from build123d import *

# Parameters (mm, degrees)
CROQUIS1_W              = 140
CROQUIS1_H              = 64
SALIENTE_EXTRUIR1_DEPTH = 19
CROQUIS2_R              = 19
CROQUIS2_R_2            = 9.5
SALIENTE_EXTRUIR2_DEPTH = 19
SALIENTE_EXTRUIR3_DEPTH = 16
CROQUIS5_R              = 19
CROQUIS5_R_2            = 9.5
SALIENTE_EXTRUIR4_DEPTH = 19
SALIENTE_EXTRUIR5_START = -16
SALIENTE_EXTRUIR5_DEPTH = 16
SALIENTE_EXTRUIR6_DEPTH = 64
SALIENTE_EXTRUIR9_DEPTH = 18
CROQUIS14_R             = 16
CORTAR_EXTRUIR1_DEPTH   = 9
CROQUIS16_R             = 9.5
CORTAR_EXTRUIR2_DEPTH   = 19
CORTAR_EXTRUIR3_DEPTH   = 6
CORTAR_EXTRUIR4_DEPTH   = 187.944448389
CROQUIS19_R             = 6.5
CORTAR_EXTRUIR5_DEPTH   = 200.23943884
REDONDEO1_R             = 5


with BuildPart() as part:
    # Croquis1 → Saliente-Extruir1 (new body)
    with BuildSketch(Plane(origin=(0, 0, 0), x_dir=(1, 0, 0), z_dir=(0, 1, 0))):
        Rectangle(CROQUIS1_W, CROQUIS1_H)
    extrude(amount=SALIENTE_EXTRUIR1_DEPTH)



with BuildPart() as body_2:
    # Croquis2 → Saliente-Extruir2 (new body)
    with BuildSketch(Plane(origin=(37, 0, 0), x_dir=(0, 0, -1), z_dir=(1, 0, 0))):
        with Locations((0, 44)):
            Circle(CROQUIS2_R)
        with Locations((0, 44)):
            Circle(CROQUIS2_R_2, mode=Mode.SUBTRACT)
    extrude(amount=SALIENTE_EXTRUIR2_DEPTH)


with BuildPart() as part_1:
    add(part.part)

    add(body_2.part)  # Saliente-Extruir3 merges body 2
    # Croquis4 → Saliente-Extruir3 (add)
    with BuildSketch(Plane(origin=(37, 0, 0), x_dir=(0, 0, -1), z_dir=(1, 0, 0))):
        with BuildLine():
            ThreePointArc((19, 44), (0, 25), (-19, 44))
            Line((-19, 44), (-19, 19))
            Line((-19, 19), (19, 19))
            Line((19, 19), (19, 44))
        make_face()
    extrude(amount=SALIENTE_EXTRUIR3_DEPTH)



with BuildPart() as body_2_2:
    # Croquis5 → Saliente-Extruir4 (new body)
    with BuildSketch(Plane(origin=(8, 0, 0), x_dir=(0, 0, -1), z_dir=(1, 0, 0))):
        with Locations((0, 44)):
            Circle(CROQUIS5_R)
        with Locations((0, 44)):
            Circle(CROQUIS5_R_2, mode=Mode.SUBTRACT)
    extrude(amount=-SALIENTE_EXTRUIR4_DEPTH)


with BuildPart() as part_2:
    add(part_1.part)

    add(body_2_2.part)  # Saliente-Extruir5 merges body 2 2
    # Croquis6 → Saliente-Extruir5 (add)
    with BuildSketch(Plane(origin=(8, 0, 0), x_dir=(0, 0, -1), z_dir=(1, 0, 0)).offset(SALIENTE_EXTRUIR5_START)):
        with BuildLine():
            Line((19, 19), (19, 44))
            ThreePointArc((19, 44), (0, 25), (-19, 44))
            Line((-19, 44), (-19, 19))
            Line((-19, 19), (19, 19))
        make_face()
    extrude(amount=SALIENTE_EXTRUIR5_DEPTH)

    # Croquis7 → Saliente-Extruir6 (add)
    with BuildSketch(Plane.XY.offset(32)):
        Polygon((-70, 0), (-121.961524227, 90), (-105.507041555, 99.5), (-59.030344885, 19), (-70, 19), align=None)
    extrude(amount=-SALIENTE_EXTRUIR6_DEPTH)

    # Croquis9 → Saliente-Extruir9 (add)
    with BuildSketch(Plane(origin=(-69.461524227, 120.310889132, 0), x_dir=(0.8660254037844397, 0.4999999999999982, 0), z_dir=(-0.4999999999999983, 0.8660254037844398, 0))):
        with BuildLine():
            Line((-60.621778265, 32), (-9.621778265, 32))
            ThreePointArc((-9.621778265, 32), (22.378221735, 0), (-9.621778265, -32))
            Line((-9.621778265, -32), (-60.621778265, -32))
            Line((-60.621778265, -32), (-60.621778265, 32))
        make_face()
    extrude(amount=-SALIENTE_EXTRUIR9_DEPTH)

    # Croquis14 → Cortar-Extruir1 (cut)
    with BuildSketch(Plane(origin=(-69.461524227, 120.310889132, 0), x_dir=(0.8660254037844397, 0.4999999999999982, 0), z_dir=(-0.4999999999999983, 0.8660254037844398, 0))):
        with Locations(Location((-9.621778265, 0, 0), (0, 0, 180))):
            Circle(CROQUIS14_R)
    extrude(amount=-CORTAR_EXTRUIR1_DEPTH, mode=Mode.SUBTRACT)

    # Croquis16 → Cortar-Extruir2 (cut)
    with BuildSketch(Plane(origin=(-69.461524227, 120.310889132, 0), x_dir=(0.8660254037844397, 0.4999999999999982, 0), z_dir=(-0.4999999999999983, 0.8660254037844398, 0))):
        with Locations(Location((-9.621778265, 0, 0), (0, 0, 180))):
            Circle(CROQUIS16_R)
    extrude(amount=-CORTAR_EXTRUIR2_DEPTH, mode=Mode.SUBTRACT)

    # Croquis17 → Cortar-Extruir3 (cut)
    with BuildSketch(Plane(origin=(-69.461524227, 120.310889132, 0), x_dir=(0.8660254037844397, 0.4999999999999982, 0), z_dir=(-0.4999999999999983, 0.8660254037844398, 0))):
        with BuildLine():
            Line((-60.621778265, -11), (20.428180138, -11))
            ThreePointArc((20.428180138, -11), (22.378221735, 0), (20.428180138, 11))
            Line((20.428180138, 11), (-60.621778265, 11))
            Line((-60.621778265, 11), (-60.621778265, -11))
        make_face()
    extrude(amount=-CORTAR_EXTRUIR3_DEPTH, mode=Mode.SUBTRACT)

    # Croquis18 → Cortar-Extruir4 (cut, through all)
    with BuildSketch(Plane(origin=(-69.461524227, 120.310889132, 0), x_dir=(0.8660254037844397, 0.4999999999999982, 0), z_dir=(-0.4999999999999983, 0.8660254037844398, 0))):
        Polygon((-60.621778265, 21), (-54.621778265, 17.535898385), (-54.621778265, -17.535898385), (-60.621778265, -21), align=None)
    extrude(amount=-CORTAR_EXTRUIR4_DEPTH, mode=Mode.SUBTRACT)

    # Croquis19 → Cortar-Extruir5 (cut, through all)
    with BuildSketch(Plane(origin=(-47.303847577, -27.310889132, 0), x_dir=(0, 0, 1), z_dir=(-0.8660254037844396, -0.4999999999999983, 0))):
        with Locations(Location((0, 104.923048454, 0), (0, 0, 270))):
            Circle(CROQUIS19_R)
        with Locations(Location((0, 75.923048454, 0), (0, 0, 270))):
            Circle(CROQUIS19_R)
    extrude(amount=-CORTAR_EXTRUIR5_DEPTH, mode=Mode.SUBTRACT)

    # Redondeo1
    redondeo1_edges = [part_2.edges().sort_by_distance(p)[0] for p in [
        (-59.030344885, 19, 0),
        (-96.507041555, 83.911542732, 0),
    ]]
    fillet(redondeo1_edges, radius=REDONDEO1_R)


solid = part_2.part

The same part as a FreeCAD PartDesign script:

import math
import FreeCAD as App
import Part
import Sketcher
from FreeCAD import Vector
Q = App.Units.Quantity


def edges_at(feature, points):
    """Names of the edges that pass closest to the given points."""
    edges = feature.Shape.Edges
    near = lambda p: min(range(len(edges)), key=lambda i: edges[i].distToShape(Part.Vertex(*p))[0])
    return sorted({f"Edge{near(p) + 1}" for p in points})


def add_polygon(sketch, points):
    """Adds a closed chain of lines whose ends are joined by coincident constraints."""
    first, n = sketch.GeometryCount, len(points)
    for a, b in zip(points, points[1:] + points[:1]):
        sketch.addGeometry(Part.LineSegment(App.Vector(*a, 0), App.Vector(*b, 0)), False)
    for i in range(n):
        sketch.addConstraint(Sketcher.Constraint("Coincident", first + i, 2, first + (i + 1) % n, 1))

doc = App.newDocument("Part")
params = doc.addObject("Spreadsheet::Sheet", "Params")
for row, (alias, value) in enumerate([
    ("sketch1_width", "140 mm"),
    ("sketch1_height", "64 mm"),
    ("pad1_length", "19 mm"),
    ("sketch2_diameter", "38 mm"),
    ("sketch2_diameter2", "19 mm"),
    ("pad2_length", "19 mm"),
    ("sketch3_radius", "19 mm"),
    ("sketch3_width", "25 mm"),
    ("pad3_length", "16 mm"),
    ("sketch4_diameter", "38 mm"),
    ("sketch4_diameter2", "19 mm"),
    ("pad4_length", "19 mm"),
    ("sketch5_radius", "19 mm"),
    ("sketch5_width", "25 mm"),
    ("pad5_length", "16 mm"),
    ("sketch6_height", "19 mm"),
    ("sketch6_length", "19 mm"),
    ("pad6_length", "64 mm"),
    ("sketch7_radius", "32 mm"),
    ("sketch7_width", "51 mm"),
    ("pad7_length", "18 mm"),
    ("sketch8_diameter", "32 mm"),
    ("pocket1_length", "9 mm"),
    ("sketch9_diameter", "19 mm"),
    ("pocket2_length", "19 mm"),
    ("sketch10_radius", "32 mm"),
    ("sketch10_height", "22 mm"),
    ("pocket3_length", "6 mm"),
    ("sketch11_height", "42 mm"),
    ("sketch12_diameter", "13 mm"),
    ("fillet_radius", "5 mm"),
], start=1):
    params.set(f"A{row}", alias)
    params.set(f"B{row}", "=" + value)
    params.setAlias(f"B{row}", alias)

body = doc.addObject("PartDesign::Body", "Body")

# Sketch on XZ plane
sketch1 = doc.addObject("Sketcher::SketchObject", "Sketch")
body.addObject(sketch1)
sketch1.AttachmentSupport = (doc.XZ_Plane, [""])
sketch1.MapMode = "FlatFace"
add_polygon(sketch1, [(-70, -32), (-70, 32), (70, 32), (70, -32)])  # lines 0-3
sketch1.addConstraint([
    Sketcher.Constraint("Vertical", 0),
    Sketcher.Constraint("Horizontal", 1),
    Sketcher.Constraint("Vertical", 2),
    Sketcher.Constraint("Horizontal", 3),
    Sketcher.Constraint("Symmetric", 0, 2, 2, 2, -1, 1),
    Sketcher.Constraint("DistanceX", 1, 1, 1, 2, 140.0),
    Sketcher.Constraint("DistanceY", 0, 1, 0, 2, 64.0),
])
sketch1.setExpression("Constraints[9]", "Params.sketch1_width")
sketch1.setExpression("Constraints[10]", "Params.sketch1_height")
pad1 = doc.addObject("PartDesign::Pad", "Pad")
body.addObject(pad1)
pad1.Profile = sketch1
pad1.setExpression("Length", "Params.pad1_length")
pad1.Reversed = True
body2 = doc.addObject("PartDesign::Body", "Body001")

# Sketch on YZ plane
sketch2 = doc.addObject("Sketcher::SketchObject", "Sketch001")
body2.addObject(sketch2)
sketch2.AttachmentSupport = (doc.getObject("YZ_Plane001"), [""])
sketch2.MapMode = "FlatFace"
sketch2.AttachmentOffset = App.Placement(Vector(0, 0, 37), App.Rotation())
sketch2.addGeometry([
    Part.Circle(Vector(44, 0, 0), Vector(0, 0, 1), 19),
    Part.Circle(Vector(44, 0, 0), Vector(0, 0, 1), 10),
], False)
sketch2.addConstraint([
    Sketcher.Constraint("Coincident", 1, 3, 0, 3),
    Sketcher.Constraint("PointOnObject", 0, 3, -1),
    Sketcher.Constraint("Diameter", 0, 38.0),
    Sketcher.Constraint("Diameter", 1, 19.0),
    Sketcher.Constraint("DistanceX", -1, 1, 0, 3, 44.0),
])
sketch2.setExpression("Constraints[2]", "Params.sketch2_diameter")
sketch2.setExpression("Constraints[3]", "Params.sketch2_diameter2")
pad2 = doc.addObject("PartDesign::Pad", "Pad001")
body2.addObject(pad2)
pad2.Profile = sketch2
pad2.setExpression("Length", "Params.pad2_length")
body.AllowCompound = True
doc.recompute()

boolean = doc.addObject("PartDesign::Boolean", "Boolean")
body.addObject(boolean)
boolean.Type = "Fuse"
boolean.addObjects([body2])

# Sketch on YZ plane
sketch3 = doc.addObject("Sketcher::SketchObject", "Sketch002")
body.addObject(sketch3)
sketch3.AttachmentSupport = (doc.YZ_Plane, [""])
sketch3.MapMode = "FlatFace"
sketch3.AttachmentOffset = App.Placement(Vector(0, 0, 37), App.Rotation())
sketch3.addGeometry([
    Part.ArcOfCircle(Part.Circle(Vector(44, 0, 0), Vector(0, 0, 1), 19), math.radians(90), math.radians(270)),
    Part.LineSegment(Vector(44, 19, 0), Vector(19, 19, 0)),
    Part.LineSegment(Vector(19, 19, 0), Vector(19, -19, 0)),
    Part.LineSegment(Vector(19, -19, 0), Vector(44, -19, 0)),
], False)
sketch3.addConstraint([
    Sketcher.Constraint("Tangent", 0, 1, 1, 1),
    Sketcher.Constraint("Coincident", 1, 2, 2, 1),
    Sketcher.Constraint("Coincident", 2, 2, 3, 1),
    Sketcher.Constraint("Tangent", 3, 2, 0, 2),
    Sketcher.Constraint("Horizontal", 1),
    Sketcher.Constraint("Vertical", 2),
    Sketcher.Constraint("Horizontal", 3),
    Sketcher.Constraint("PointOnObject", 0, 3, -1),
    Sketcher.Constraint("Radius", 0, 19.0),
    Sketcher.Constraint("DistanceX", 1, 2, 1, 1, 25.0),
    Sketcher.Constraint("DistanceX", -1, 1, 0, 3, 44.0),
])
sketch3.setExpression("Constraints[8]", "Params.sketch3_radius")
sketch3.setExpression("Constraints[9]", "Params.sketch3_width")
pad3 = doc.addObject("PartDesign::Pad", "Pad002")
body.addObject(pad3)
pad3.Profile = sketch3
pad3.setExpression("Length", "Params.pad3_length")
body3 = doc.addObject("PartDesign::Body", "Body002")

# Sketch on YZ plane
sketch4 = doc.addObject("Sketcher::SketchObject", "Sketch003")
body3.addObject(sketch4)
sketch4.AttachmentSupport = (doc.getObject("YZ_Plane002"), [""])
sketch4.MapMode = "FlatFace"
sketch4.AttachmentOffset = App.Placement(Vector(0, 0, 8), App.Rotation())
sketch4.addGeometry([
    Part.Circle(Vector(44, 0, 0), Vector(0, 0, 1), 19),
    Part.Circle(Vector(44, 0, 0), Vector(0, 0, 1), 10),
], False)
sketch4.addConstraint([
    Sketcher.Constraint("Coincident", 1, 3, 0, 3),
    Sketcher.Constraint("PointOnObject", 0, 3, -1),
    Sketcher.Constraint("Diameter", 0, 38.0),
    Sketcher.Constraint("Diameter", 1, 19.0),
    Sketcher.Constraint("DistanceX", -1, 1, 0, 3, 44.0),
])
sketch4.setExpression("Constraints[2]", "Params.sketch4_diameter")
sketch4.setExpression("Constraints[3]", "Params.sketch4_diameter2")
pad4 = doc.addObject("PartDesign::Pad", "Pad003")
body3.addObject(pad4)
pad4.Profile = sketch4
pad4.setExpression("Length", "Params.pad4_length")
pad4.Reversed = True
body.AllowCompound = True
doc.recompute()

boolean2 = doc.addObject("PartDesign::Boolean", "Boolean001")
body.addObject(boolean2)
boolean2.Type = "Fuse"
boolean2.addObjects([body3])

# Sketch on YZ plane
sketch5 = doc.addObject("Sketcher::SketchObject", "Sketch004")
body.addObject(sketch5)
sketch5.AttachmentSupport = (doc.YZ_Plane, [""])
sketch5.MapMode = "FlatFace"
sketch5.AttachmentOffset = App.Placement(Vector(0, 0, -8), App.Rotation())
sketch5.addGeometry([
    Part.LineSegment(Vector(19, -19, 0), Vector(44, -19, 0)),
    Part.ArcOfCircle(Part.Circle(Vector(44, 0, 0), Vector(0, 0, 1), 19), math.radians(90), math.radians(270)),
    Part.LineSegment(Vector(44, 19, 0), Vector(19, 19, 0)),
    Part.LineSegment(Vector(19, 19, 0), Vector(19, -19, 0)),
], False)
sketch5.addConstraint([
    Sketcher.Constraint("Tangent", 0, 2, 1, 2),
    Sketcher.Constraint("Tangent", 1, 1, 2, 1),
    Sketcher.Constraint("Coincident", 2, 2, 3, 1),
    Sketcher.Constraint("Coincident", 3, 2, 0, 1),
    Sketcher.Constraint("Horizontal", 0),
    Sketcher.Constraint("Horizontal", 2),
    Sketcher.Constraint("Vertical", 3),
    Sketcher.Constraint("PointOnObject", 1, 3, -1),
    Sketcher.Constraint("Radius", 1, 19.0),
    Sketcher.Constraint("DistanceX", 0, 1, 0, 2, 25.0),
    Sketcher.Constraint("DistanceX", -1, 1, 1, 3, 44.0),
])
sketch5.setExpression("Constraints[8]", "Params.sketch5_radius")
sketch5.setExpression("Constraints[9]", "Params.sketch5_width")
pad5 = doc.addObject("PartDesign::Pad", "Pad004")
body.addObject(pad5)
pad5.Profile = sketch5
pad5.setExpression("Length", "Params.pad5_length")

# Sketch on XY plane
sketch6 = doc.addObject("Sketcher::SketchObject", "Sketch005")
body.addObject(sketch6)
sketch6.AttachmentSupport = (doc.XY_Plane, [""])
sketch6.MapMode = "FlatFace"
sketch6.AttachmentOffset = App.Placement(Vector(0, 0, 32), App.Rotation())
add_polygon(sketch6, [(-122, 90), (-70, 0), (-70, 19), (-59, 19), (-106, 100)])  # lines 0-4
sketch6.addConstraint([
    Sketcher.Constraint("Vertical", 1),
    Sketcher.Constraint("Horizontal", 2),
    Sketcher.Constraint("PointOnObject", 0, 2, -1),
    Sketcher.Constraint("Parallel", 0, 3),
    Sketcher.Constraint("Perpendicular", 3, 4),
    Sketcher.Constraint("DistanceY", 1, 1, 1, 2, 19.0),
    Sketcher.Constraint("Angle", 0, Q("-60 deg")),
    Sketcher.Constraint("Distance", 4, 19.0),
    Sketcher.Constraint("DistanceX", 0, 2, -1, 1, 70.0),
    Sketcher.Constraint("DistanceY", -1, 1, 4, 2, 90.0),
])
sketch6.setExpression("Constraints[10]", "Params.sketch6_height")
sketch6.setExpression("Constraints[12]", "Params.sketch6_length")
pad6 = doc.addObject("PartDesign::Pad", "Pad005")
body.addObject(pad6)
pad6.Profile = sketch6
pad6.setExpression("Length", "Params.pad6_length")
pad6.Reversed = True

# Sketch on an angled plane
sketch7 = doc.addObject("Sketcher::SketchObject", "Sketch006")
body.addObject(sketch7)
sketch7.Placement = App.Placement(Vector(-69.461524, 120.310889, 0), App.Rotation(Vector(0.866025404, 0.5, 0), Vector(0, 0, -1), Vector(-0.5, 0.866025404, 0), "ZXY"))
sketch7.addGeometry([
    Part.LineSegment(Vector(-10, 32, 0), Vector(-61, 32, 0)),
    Part.LineSegment(Vector(-61, 32, 0), Vector(-61, -32, 0)),
    Part.LineSegment(Vector(-61, -32, 0), Vector(-10, -32, 0)),
    Part.ArcOfCircle(Part.Circle(Vector(-10, 0, 0), Vector(0, 0, 1), 32), math.radians(-90), math.radians(90)),
], False)
sketch7.addConstraint([
    Sketcher.Constraint("Coincident", 0, 2, 1, 1),
    Sketcher.Constraint("Coincident", 1, 2, 2, 1),
    Sketcher.Constraint("Tangent", 2, 2, 3, 1),
    Sketcher.Constraint("Tangent", 3, 2, 0, 1),
    Sketcher.Constraint("Horizontal", 0),
    Sketcher.Constraint("Vertical", 1),
    Sketcher.Constraint("Horizontal", 2),
    Sketcher.Constraint("PointOnObject", 3, 3, -1),
    Sketcher.Constraint("Radius", 3, 32.0),
    Sketcher.Constraint("DistanceX", 0, 2, 0, 1, 51.0),
    Sketcher.Constraint("DistanceX", 3, 3, -1, 1, 9.621778),
])
sketch7.setExpression("Constraints[8]", "Params.sketch7_radius")
sketch7.setExpression("Constraints[9]", "Params.sketch7_width")
pad7 = doc.addObject("PartDesign::Pad", "Pad006")
body.addObject(pad7)
pad7.Profile = sketch7
pad7.setExpression("Length", "Params.pad7_length")
pad7.Reversed = True

# Sketch on an angled plane
sketch8 = doc.addObject("Sketcher::SketchObject", "Sketch007")
body.addObject(sketch8)
sketch8.Placement = App.Placement(Vector(-69.461524, 120.310889, 0), App.Rotation(Vector(0.866025404, 0.5, 0), Vector(0, 0, -1), Vector(-0.5, 0.866025404, 0), "ZXY"))
sketch8.addGeometry(Part.Circle(Vector(-10, 0, 0), Vector(0, 0, 1), 16), False)
sketch8.addConstraint([
    Sketcher.Constraint("PointOnObject", 0, 3, -1),
    Sketcher.Constraint("Diameter", 0, 32.0),
    Sketcher.Constraint("DistanceX", 0, 3, -1, 1, 9.621778),
])
sketch8.setExpression("Constraints[1]", "Params.sketch8_diameter")
pocket1 = doc.addObject("PartDesign::Pocket", "Pocket")
body.addObject(pocket1)
pocket1.Profile = sketch8
pocket1.setExpression("Length", "Params.pocket1_length")

# Sketch on an angled plane
sketch9 = doc.addObject("Sketcher::SketchObject", "Sketch008")
body.addObject(sketch9)
sketch9.Placement = App.Placement(Vector(-69.461524, 120.310889, 0), App.Rotation(Vector(0.866025404, 0.5, 0), Vector(0, 0, -1), Vector(-0.5, 0.866025404, 0), "ZXY"))
sketch9.addGeometry(Part.Circle(Vector(-10, 0, 0), Vector(0, 0, 1), 10), False)
sketch9.addConstraint([
    Sketcher.Constraint("PointOnObject", 0, 3, -1),
    Sketcher.Constraint("Diameter", 0, 19.0),
    Sketcher.Constraint("DistanceX", 0, 3, -1, 1, 9.621778),
])
sketch9.setExpression("Constraints[1]", "Params.sketch9_diameter")
pocket2 = doc.addObject("PartDesign::Pocket", "Pocket001")
body.addObject(pocket2)
pocket2.Profile = sketch9
pocket2.setExpression("Length", "Params.pocket2_length")

# Sketch on an angled plane
sketch10 = doc.addObject("Sketcher::SketchObject", "Sketch009")
body.addObject(sketch10)
sketch10.Placement = App.Placement(Vector(-69.461524, 120.310889, 0), App.Rotation(Vector(0.866025404, 0.5, 0), Vector(0, 0, -1), Vector(-0.5, 0.866025404, 0), "ZXY"))
sketch10.addGeometry([
    Part.LineSegment(Vector(-61, -11, 0), Vector(20, -11, 0)),
    Part.ArcOfCircle(Part.Circle(Vector(-10, 0, 0), Vector(0, 0, 1), 32), math.radians(-20), math.radians(20)),
    Part.LineSegment(Vector(20, 11, 0), Vector(-61, 11, 0)),
    Part.LineSegment(Vector(-61, 11, 0), Vector(-61, -11, 0)),
], False)
sketch10.addConstraint([
    Sketcher.Constraint("Coincident", 0, 2, 1, 1),
    Sketcher.Constraint("Coincident", 1, 2, 2, 1),
    Sketcher.Constraint("Coincident", 2, 2, 3, 1),
    Sketcher.Constraint("Coincident", 3, 2, 0, 1),
    Sketcher.Constraint("Horizontal", 0),
    Sketcher.Constraint("Horizontal", 2),
    Sketcher.Constraint("Vertical", 3),
    Sketcher.Constraint("Symmetric", 0, 2, 1, 2, -1),
    Sketcher.Constraint("Radius", 1, 32.0),
    Sketcher.Constraint("DistanceY", 3, 2, 3, 1, 22.0),
    Sketcher.Constraint("DistanceX", 2, 2, 1, 3, 51.0),
    Sketcher.Constraint("DistanceX", 1, 3, -1, 1, 9.621778),
])
sketch10.setExpression("Constraints[8]", "Params.sketch10_radius")
sketch10.setExpression("Constraints[9]", "Params.sketch10_height")
pocket3 = doc.addObject("PartDesign::Pocket", "Pocket002")
body.addObject(pocket3)
pocket3.Profile = sketch10
pocket3.setExpression("Length", "Params.pocket3_length")

# Sketch on an angled plane
sketch11 = doc.addObject("Sketcher::SketchObject", "Sketch010")
body.addObject(sketch11)
sketch11.Placement = App.Placement(Vector(-69.461524, 120.310889, 0), App.Rotation(Vector(0.866025404, 0.5, 0), Vector(0, 0, -1), Vector(-0.5, 0.866025404, 0), "ZXY"))
add_polygon(sketch11, [(-55, 18), (-61, 21), (-61, -21), (-55, -18)])  # lines 0-3
sketch11.addConstraint([
    Sketcher.Constraint("Vertical", 1),
    Sketcher.Constraint("Vertical", 3),
    Sketcher.Constraint("Equal", 0, 2),
    Sketcher.Constraint("DistanceY", 1, 2, 1, 1, 42.0),
    Sketcher.Constraint("Angle", 0, Q("150 deg")),
    Sketcher.Constraint("DistanceY", -1, 1, 0, 2, 21.0),
    Sketcher.Constraint("DistanceX", 1, 2, 2, 2, 6.0),
    Sketcher.Constraint("DistanceX", 0, 2, -1, 1, 60.621778),
])
sketch11.setExpression("Constraints[7]", "Params.sketch11_height")
pocket4 = doc.addObject("PartDesign::Pocket", "Pocket003")
body.addObject(pocket4)
pocket4.Profile = sketch11
pocket4.Type = "ThroughAll"

# Sketch on an angled plane
sketch12 = doc.addObject("Sketcher::SketchObject", "Sketch011")
body.addObject(sketch12)
sketch12.Placement = App.Placement(Vector(-47.303848, -27.310889, 0), App.Rotation(Vector(0, 0, 1), Vector(-0.5, 0.866025404, 0), Vector(-0.866025404, -0.5, 0), "ZXY"))
sketch12.addGeometry([
    Part.Circle(Vector(0, 105, 0), Vector(0, 0, 1), 6),
    Part.Circle(Vector(0, 76, 0), Vector(0, 0, 1), 6),
], False)
sketch12.addConstraint([
    Sketcher.Constraint("Equal", 0, 1),
    Sketcher.Constraint("PointOnObject", 0, 3, -2),
    Sketcher.Constraint("PointOnObject", 1, 3, -2),
    Sketcher.Constraint("Diameter", 0, 13.0),
    Sketcher.Constraint("DistanceY", 1, 3, 0, 3, 29.0),
    Sketcher.Constraint("DistanceY", -1, 1, 0, 3, 104.923048),
])
sketch12.setExpression("Constraints[3]", "Params.sketch12_diameter")
pocket5 = doc.addObject("PartDesign::Pocket", "Pocket004")
body.addObject(pocket5)
pocket5.Profile = sketch12
pocket5.Type = "ThroughAll"
doc.recompute()

fillet = doc.addObject("PartDesign::Fillet", "Fillet")
body.addObject(fillet)
fillet.Base = (pocket5, edges_at(pocket5, [(-59.03, 19, 0), (-96.507, 83.912, 0)]))
fillet.setExpression("Radius", "Params.fillet_radius")

doc.recompute()
